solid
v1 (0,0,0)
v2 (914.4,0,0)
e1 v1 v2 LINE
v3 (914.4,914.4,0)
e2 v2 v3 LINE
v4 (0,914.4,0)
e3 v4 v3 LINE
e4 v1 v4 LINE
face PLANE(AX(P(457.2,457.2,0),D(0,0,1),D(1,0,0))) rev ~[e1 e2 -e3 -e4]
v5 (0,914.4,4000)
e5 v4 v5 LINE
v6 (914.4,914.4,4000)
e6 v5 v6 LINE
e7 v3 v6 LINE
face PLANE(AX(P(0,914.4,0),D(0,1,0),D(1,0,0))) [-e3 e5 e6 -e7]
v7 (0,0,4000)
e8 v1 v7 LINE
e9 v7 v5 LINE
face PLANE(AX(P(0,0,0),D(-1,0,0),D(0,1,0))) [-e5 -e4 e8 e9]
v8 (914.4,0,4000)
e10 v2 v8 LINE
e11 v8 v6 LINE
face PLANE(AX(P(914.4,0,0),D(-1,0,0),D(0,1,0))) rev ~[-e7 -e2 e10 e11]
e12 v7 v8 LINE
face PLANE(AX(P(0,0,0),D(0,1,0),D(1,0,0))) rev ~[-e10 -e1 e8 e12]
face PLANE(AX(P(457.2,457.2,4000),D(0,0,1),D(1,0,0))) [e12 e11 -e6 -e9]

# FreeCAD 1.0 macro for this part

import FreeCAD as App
import Part
import Sketcher

V = App.Vector


def add_polygon(sketch, points):
    """Adds a closed chain of lines whose ends are joined by coincident constraints."""
    first, n = sketch.GeometryCount, len(points)
    for a, b in zip(points, points[1:] + points[:1]):
        sketch.addGeometry(Part.LineSegment(App.Vector(*a, 0), App.Vector(*b, 0)), False)
    for i in range(n):
        sketch.addConstraint(Sketcher.Constraint("Coincident", first + i, 2, first + (i + 1) % n, 1))

doc = App.newDocument("Part")
body = doc.addObject("PartDesign::Body", "Body")

sketch1 = body.newObject("Sketcher::SketchObject", "Sketch")
sketch1.AttachmentSupport = (doc.getObject("XY_Plane"), [""])
sketch1.MapMode = "FlatFace"
add_polygon(sketch1, [(0, 914), (0, 0), (914, 0), (914, 914)])
sketch1.addConstraint([
    Sketcher.Constraint("Vertical", 0),
    Sketcher.Constraint("Horizontal", 1),
    Sketcher.Constraint("Vertical", 2),
    Sketcher.Constraint("Horizontal", 3),
    Sketcher.Constraint("Coincident", 0, 2, -1, 1),
    Sketcher.Constraint("Equal", 3, 0),
    Sketcher.Constraint("DistanceX", 1, 1, 1, 2, 914.4),
])
pad1 = body.newObject("PartDesign::Pad", "Pad")
pad1.Profile = sketch1
pad1.Length = 4000

doc.recompute()
